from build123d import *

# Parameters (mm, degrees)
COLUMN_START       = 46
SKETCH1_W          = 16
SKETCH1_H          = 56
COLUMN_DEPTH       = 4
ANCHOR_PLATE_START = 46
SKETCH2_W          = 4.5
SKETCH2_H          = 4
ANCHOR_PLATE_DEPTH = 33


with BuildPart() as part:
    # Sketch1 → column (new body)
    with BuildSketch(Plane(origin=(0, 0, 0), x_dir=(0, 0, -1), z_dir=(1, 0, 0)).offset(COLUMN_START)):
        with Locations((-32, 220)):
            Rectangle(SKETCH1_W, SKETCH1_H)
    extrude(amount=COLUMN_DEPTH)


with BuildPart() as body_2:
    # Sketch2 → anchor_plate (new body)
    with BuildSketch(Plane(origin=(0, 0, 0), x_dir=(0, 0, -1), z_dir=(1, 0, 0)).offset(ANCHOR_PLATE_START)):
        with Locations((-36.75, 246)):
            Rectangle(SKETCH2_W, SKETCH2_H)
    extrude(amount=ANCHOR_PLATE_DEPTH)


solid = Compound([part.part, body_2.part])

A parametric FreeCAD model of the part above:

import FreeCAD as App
import Part
import Sketcher
from FreeCAD import Vector
Q = App.Units.Quantity


def add_polygon(sketch, points):
    """Adds a closed chain of lines whose ends are joined by coincident constraints."""
    first, n = sketch.GeometryCount, len(points)
    for a, b in zip(points, points[1:] + points[:1]):
        sketch.addGeometry(Part.LineSegment(App.Vector(*a, 0), App.Vector(*b, 0)), False)
    for i in range(n):
        sketch.addConstraint(Sketcher.Constraint("Coincident", first + i, 2, first + (i + 1) % n, 1))

doc = App.newDocument("Part")
body = doc.addObject("PartDesign::Body", "Body")

sketch1 = body.newObject("Sketcher::SketchObject", "Sketch")
sketch1.AttachmentSupport = (doc.getObject("YZ_Plane"), [""])
sketch1.MapMode = "FlatFace"
sketch1.AttachmentOffset = App.Placement(Vector(0, 0, 46), App.Rotation())
add_polygon(sketch1, [(248, 40), (192, 40), (192, 24), (248, 24)])
sketch1.addConstraint(Sketcher.Constraint("Horizontal", 0))
sketch1.addConstraint(Sketcher.Constraint("Vertical", 1))
sketch1.addConstraint(Sketcher.Constraint("Horizontal", 2))
sketch1.addConstraint(Sketcher.Constraint("Vertical", 3))
sketch1.addConstraint(Sketcher.Constraint("DistanceX", 0, 2, 0, 1, Q("56 mm")))
sketch1.addConstraint(Sketcher.Constraint("DistanceY", 1, 2, 1, 1, Q("16 mm")))
sketch1.addConstraint(Sketcher.Constraint("DistanceX", -1, 1, 0, 2, Q("192 mm")))
sketch1.addConstraint(Sketcher.Constraint("DistanceY", -1, 1, 0, 2, Q("40 mm")))
pad1 = body.newObject("PartDesign::Pad", "Pad")
pad1.Profile = sketch1
pad1.Length = 4
body2 = doc.addObject("PartDesign::Body", "Body001")

sketch2 = body2.newObject("Sketcher::SketchObject", "Sketch001")
sketch2.AttachmentSupport = (doc.getObject("YZ_Plane001"), [""])
sketch2.MapMode = "FlatFace"
sketch2.AttachmentOffset = App.Placement(Vector(0, 0, 46), App.Rotation())
add_polygon(sketch2, [(248, 39), (244, 39), (244, 34.5), (248, 34.5)])
sketch2.addConstraint(Sketcher.Constraint("Horizontal", 0))
sketch2.addConstraint(Sketcher.Constraint("Vertical", 1))
sketch2.addConstraint(Sketcher.Constraint("Horizontal", 2))
sketch2.addConstraint(Sketcher.Constraint("Vertical", 3))
sketch2.addConstraint(Sketcher.Constraint("DistanceX", 0, 2, 0, 1, Q("4 mm")))
sketch2.addConstraint(Sketcher.Constraint("DistanceY", 1, 2, 1, 1, Q("4.5 mm")))
sketch2.addConstraint(Sketcher.Constraint("DistanceX", -1, 1, 0, 2, Q("244 mm")))
sketch2.addConstraint(Sketcher.Constraint("DistanceY", -1, 1, 0, 2, Q("39 mm")))
pad2 = body2.newObject("PartDesign::Pad", "Pad001")
pad2.Profile = sketch2
pad2.Length = 33

doc.recompute()
